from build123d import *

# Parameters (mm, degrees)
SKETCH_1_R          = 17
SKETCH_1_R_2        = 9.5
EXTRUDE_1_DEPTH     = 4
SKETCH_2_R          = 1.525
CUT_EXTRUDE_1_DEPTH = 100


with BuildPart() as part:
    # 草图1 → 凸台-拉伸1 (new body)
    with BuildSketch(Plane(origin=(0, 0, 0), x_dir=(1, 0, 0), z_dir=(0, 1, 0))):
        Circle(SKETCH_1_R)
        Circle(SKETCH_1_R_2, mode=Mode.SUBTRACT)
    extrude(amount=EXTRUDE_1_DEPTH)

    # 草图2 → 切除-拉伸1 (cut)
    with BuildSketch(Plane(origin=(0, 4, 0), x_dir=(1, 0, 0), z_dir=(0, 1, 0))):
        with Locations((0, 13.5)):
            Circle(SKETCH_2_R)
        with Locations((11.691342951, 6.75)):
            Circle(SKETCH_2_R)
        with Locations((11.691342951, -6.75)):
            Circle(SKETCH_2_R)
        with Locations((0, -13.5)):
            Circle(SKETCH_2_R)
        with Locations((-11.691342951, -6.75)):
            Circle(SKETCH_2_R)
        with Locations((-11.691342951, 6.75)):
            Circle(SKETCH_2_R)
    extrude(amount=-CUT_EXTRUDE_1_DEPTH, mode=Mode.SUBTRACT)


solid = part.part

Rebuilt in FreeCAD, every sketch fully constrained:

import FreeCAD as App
import Part
import Sketcher

V = App.Vector
Q = App.Units.Quantity

doc = App.newDocument("Part")
params = doc.addObject("Spreadsheet::Sheet", "Params")
for row, (alias, value) in enumerate([
    ("sketch1_diameter", "34 mm"),
    ("sketch1_diameter2", "19 mm"),
    ("pad1_length", "4 mm"),
    ("sketch2_diameter", "3.05 mm"),
    ("pocket1_length", "100 mm"),
], start=1):
    params.set(f"A{row}", alias)
    params.set(f"B{row}", "=" + value)
    params.setAlias(f"B{row}", alias)

body = doc.addObject("PartDesign::Body", "Body")

sketch1 = body.newObject("Sketcher::SketchObject", "Sketch")
sketch1.AttachmentSupport = (doc.getObject("XZ_Plane"), [""])
sketch1.MapMode = "FlatFace"
sketch1.addGeometry([
    Part.Circle(V(0, 0, 0), V(0, 0, 1), 17),
    Part.Circle(V(0, 0, 0), V(0, 0, 1), 10),
], False)
sketch1.addConstraint([
    Sketcher.Constraint("Coincident", 0, 3, -1, 1),
    Sketcher.Constraint("Coincident", 1, 3, -1, 1),
    Sketcher.Constraint("Diameter", 0, Q("34 mm")),
    Sketcher.Constraint("Diameter", 1, Q("19 mm")),
])
sketch1.setExpression("Constraints[2]", "Params.sketch1_diameter")
sketch1.setExpression("Constraints[3]", "Params.sketch1_diameter2")
pad1 = body.newObject("PartDesign::Pad", "Pad")
pad1.Profile = sketch1
pad1.setExpression("Length", "Params.pad1_length")
pad1.Reversed = True

sketch2 = body.newObject("Sketcher::SketchObject", "Sketch001")
sketch2.AttachmentSupport = (doc.getObject("XZ_Plane"), [""])
sketch2.MapMode = "FlatFace"
sketch2.AttachmentOffset = App.Placement(V(0, 0, -4), App.Rotation())
sketch2.addGeometry([
    Part.Circle(V(0, -13.5, 0), V(0, 0, 1), 1.5),
    Part.Circle(V(11.7, -6.8, 0), V(0, 0, 1), 1.5),
    Part.Circle(V(11.7, 6.8, 0), V(0, 0, 1), 1.5),
    Part.Circle(V(0, 13.5, 0), V(0, 0, 1), 1.5),
    Part.Circle(V(-11.7, 6.8, 0), V(0, 0, 1), 1.5),
    Part.Circle(V(-11.7, -6.8, 0), V(0, 0, 1), 1.5),
], False)
sketch2.addConstraint([
    Sketcher.Constraint("Equal", 0, 1),
    Sketcher.Constraint("Equal", 1, 2),
    Sketcher.Constraint("Equal", 2, 3),
    Sketcher.Constraint("Equal", 3, 4),
    Sketcher.Constraint("Equal", 4, 5),
    Sketcher.Constraint("Symmetric", 0, 3, 3, 3, -1, 1),
    Sketcher.Constraint("Symmetric", 1, 3, 4, 3, -1, 1),
    Sketcher.Constraint("Symmetric", 2, 3, 5, 3, -1, 1),
    Sketcher.Constraint("Symmetric", 2, 3, 4, 3, -2),
    Sketcher.Constraint("PointOnObject", 0, 3, -2),
    Sketcher.Constraint("Diameter", 0, Q("3.05 mm")),
    Sketcher.Constraint("DistanceY", 0, 3, 3, 3, Q("27 mm")),
    Sketcher.Constraint("DistanceY", 1, 3, 2, 3, Q("13.5 mm")),
    Sketcher.Constraint("DistanceX", -1, 1, 1, 3, Q("11.691343 mm")),
])
sketch2.setExpression("Constraints[10]", "Params.sketch2_diameter")
pocket1 = body.newObject("PartDesign::Pocket", "Pocket")
pocket1.Profile = sketch2
pocket1.setExpression("Length", "Params.pocket1_length")
pocket1.Reversed = True

doc.recompute()
